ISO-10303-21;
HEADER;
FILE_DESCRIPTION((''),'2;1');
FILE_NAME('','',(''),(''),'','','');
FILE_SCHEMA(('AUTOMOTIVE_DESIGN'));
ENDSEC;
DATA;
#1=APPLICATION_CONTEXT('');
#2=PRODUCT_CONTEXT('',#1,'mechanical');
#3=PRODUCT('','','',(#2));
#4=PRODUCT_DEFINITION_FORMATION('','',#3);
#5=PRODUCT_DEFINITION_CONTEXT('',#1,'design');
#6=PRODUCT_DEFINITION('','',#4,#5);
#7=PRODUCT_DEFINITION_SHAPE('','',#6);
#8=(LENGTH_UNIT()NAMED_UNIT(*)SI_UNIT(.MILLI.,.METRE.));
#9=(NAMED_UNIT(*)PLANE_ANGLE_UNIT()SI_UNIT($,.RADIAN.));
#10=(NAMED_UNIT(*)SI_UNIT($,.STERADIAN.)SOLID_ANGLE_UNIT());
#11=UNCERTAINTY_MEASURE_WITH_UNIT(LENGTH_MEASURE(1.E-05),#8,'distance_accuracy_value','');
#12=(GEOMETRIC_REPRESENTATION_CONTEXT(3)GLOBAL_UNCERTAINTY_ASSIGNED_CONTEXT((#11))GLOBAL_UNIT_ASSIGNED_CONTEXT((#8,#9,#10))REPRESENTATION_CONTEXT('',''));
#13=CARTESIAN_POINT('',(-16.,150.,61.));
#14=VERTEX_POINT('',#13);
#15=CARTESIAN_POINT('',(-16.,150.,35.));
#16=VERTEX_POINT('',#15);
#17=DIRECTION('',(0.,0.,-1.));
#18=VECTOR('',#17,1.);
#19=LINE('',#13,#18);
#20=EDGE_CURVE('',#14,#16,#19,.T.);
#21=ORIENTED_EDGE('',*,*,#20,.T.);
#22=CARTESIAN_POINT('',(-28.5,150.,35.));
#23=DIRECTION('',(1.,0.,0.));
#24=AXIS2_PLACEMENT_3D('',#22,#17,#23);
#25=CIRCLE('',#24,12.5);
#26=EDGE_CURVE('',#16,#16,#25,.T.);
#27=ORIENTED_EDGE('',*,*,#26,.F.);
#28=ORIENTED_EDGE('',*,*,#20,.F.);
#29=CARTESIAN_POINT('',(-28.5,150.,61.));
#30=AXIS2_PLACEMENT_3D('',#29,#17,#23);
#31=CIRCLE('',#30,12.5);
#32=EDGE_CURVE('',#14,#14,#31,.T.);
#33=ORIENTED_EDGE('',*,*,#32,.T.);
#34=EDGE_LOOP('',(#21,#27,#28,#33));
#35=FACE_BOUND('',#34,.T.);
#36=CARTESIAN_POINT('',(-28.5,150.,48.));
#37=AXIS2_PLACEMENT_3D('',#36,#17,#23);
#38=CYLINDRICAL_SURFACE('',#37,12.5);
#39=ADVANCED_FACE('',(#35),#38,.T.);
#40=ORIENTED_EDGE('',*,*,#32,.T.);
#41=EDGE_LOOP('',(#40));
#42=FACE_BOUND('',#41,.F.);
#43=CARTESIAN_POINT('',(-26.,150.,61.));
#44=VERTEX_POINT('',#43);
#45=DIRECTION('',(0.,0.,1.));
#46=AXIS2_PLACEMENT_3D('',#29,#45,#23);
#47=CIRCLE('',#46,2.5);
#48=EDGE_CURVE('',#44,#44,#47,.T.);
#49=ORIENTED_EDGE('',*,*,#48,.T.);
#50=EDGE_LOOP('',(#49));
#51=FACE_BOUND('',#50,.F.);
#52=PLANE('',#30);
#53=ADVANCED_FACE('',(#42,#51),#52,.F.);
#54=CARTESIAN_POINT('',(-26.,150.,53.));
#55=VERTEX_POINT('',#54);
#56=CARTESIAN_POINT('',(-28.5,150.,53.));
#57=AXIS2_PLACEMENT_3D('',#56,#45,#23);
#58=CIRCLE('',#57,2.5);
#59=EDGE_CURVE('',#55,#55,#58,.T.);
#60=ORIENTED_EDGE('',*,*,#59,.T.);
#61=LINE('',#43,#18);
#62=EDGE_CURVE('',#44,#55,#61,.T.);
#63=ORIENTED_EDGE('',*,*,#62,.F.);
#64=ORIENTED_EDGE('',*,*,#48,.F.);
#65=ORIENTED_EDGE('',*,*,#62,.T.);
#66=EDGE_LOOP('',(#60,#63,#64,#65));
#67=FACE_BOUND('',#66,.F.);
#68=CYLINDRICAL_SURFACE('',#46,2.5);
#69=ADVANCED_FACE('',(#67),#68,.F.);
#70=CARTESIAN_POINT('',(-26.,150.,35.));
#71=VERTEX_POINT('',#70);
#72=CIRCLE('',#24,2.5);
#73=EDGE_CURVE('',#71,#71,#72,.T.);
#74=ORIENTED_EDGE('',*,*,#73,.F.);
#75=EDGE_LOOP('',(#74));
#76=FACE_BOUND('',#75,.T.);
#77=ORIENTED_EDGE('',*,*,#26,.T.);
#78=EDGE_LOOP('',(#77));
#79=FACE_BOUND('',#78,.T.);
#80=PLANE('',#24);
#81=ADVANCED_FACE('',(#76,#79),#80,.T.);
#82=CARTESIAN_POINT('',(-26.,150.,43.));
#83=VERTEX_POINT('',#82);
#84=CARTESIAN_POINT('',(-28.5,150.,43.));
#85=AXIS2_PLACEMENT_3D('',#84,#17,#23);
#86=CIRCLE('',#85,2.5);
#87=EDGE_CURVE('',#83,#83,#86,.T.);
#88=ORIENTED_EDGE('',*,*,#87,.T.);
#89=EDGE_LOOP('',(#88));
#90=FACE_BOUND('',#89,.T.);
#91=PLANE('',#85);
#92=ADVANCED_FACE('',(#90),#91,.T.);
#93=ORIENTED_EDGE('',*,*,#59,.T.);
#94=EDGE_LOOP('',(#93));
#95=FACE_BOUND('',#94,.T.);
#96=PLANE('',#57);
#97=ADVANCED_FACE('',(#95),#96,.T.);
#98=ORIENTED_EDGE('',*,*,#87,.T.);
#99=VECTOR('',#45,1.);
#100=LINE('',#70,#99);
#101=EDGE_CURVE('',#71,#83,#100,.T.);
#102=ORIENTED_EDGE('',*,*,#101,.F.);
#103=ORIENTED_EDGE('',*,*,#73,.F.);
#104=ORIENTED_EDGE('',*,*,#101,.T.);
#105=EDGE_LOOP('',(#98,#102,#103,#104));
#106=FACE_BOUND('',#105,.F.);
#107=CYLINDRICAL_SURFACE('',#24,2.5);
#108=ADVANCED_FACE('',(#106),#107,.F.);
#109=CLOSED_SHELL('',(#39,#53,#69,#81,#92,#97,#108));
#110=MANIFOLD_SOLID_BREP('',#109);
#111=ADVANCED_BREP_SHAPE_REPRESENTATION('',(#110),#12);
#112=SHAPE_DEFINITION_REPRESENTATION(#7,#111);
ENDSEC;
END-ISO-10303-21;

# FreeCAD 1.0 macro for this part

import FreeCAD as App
import Part
import Sketcher
from FreeCAD import Vector

doc = App.newDocument("Part")
body = doc.addObject("PartDesign::Body", "Body")

sketch1 = body.newObject("Sketcher::SketchObject", "Sketch")
sketch1.AttachmentSupport = (doc.getObject("XZ_Plane"), [""])
sketch1.MapMode = "FlatFace"
sketch1.addGeometry(Part.Circle(Vector(0, 0, 0), Vector(0, 0, 1), 12), False)
sketch1.addConstraint([
    Sketcher.Constraint("Coincident", 0, 3, -1, 1),
    Sketcher.Constraint("Diameter", 0, 25.0),
])
pad1 = body.newObject("PartDesign::Pad", "Pad")
pad1.Profile = sketch1
pad1.Length = 26
pad1.Midplane = True

sketch2 = body.newObject("Sketcher::SketchObject", "Sketch001")
sketch2.AttachmentSupport = (doc.getObject("XZ_Plane"), [""])
sketch2.MapMode = "FlatFace"
sketch2.AttachmentOffset = App.Placement(Vector(0, 0, 13), App.Rotation())
sketch2.addGeometry(Part.Circle(Vector(0, 0, 0), Vector(0, 0, 1), 2.5), False)
sketch2.addConstraint([
    Sketcher.Constraint("Coincident", 0, 3, -1, 1),
    Sketcher.Constraint("Diameter", 0, 5.0),
])
pocket1 = body.newObject("PartDesign::Pocket", "Pocket")
pocket1.Profile = sketch2
pocket1.Length = 8

sketch3 = body.newObject("Sketcher::SketchObject", "Sketch002")
sketch3.AttachmentSupport = (doc.getObject("XZ_Plane"), [""])
sketch3.MapMode = "FlatFace"
sketch3.AttachmentOffset = App.Placement(Vector(0, 0, -13), App.Rotation())
sketch3.addGeometry(Part.Circle(Vector(0, 0, 0), Vector(0, 0, 1), 2.5), False)
sketch3.addConstraint([
    Sketcher.Constraint("Coincident", 0, 3, -1, 1),
    Sketcher.Constraint("Diameter", 0, 5.0),
])
pocket2 = body.newObject("PartDesign::Pocket", "Pocket001")
pocket2.Profile = sketch3
pocket2.Length = 8
pocket2.Reversed = True
body2 = doc.addObject("PartDesign::Body", "Body001")
doc.recompute()

body.Placement = App.Placement(Vector(0, 0, 0), App.Rotation(Vector(1, 0, 0), 90))
boolean = body2.newObject("PartDesign::Boolean", "Boolean")
boolean.Type = "Fuse"
boolean.addObjects([body])
body3 = doc.addObject("PartDesign::Body", "Body002")
doc.recompute()

body2.Placement = App.Placement(Vector(-28.5, 150, 48), App.Rotation(Vector(0, 0, 1), 0))
boolean2 = body3.newObject("PartDesign::Boolean", "Boolean001")
boolean2.Type = "Fuse"
boolean2.addObjects([body2])

doc.recompute()
